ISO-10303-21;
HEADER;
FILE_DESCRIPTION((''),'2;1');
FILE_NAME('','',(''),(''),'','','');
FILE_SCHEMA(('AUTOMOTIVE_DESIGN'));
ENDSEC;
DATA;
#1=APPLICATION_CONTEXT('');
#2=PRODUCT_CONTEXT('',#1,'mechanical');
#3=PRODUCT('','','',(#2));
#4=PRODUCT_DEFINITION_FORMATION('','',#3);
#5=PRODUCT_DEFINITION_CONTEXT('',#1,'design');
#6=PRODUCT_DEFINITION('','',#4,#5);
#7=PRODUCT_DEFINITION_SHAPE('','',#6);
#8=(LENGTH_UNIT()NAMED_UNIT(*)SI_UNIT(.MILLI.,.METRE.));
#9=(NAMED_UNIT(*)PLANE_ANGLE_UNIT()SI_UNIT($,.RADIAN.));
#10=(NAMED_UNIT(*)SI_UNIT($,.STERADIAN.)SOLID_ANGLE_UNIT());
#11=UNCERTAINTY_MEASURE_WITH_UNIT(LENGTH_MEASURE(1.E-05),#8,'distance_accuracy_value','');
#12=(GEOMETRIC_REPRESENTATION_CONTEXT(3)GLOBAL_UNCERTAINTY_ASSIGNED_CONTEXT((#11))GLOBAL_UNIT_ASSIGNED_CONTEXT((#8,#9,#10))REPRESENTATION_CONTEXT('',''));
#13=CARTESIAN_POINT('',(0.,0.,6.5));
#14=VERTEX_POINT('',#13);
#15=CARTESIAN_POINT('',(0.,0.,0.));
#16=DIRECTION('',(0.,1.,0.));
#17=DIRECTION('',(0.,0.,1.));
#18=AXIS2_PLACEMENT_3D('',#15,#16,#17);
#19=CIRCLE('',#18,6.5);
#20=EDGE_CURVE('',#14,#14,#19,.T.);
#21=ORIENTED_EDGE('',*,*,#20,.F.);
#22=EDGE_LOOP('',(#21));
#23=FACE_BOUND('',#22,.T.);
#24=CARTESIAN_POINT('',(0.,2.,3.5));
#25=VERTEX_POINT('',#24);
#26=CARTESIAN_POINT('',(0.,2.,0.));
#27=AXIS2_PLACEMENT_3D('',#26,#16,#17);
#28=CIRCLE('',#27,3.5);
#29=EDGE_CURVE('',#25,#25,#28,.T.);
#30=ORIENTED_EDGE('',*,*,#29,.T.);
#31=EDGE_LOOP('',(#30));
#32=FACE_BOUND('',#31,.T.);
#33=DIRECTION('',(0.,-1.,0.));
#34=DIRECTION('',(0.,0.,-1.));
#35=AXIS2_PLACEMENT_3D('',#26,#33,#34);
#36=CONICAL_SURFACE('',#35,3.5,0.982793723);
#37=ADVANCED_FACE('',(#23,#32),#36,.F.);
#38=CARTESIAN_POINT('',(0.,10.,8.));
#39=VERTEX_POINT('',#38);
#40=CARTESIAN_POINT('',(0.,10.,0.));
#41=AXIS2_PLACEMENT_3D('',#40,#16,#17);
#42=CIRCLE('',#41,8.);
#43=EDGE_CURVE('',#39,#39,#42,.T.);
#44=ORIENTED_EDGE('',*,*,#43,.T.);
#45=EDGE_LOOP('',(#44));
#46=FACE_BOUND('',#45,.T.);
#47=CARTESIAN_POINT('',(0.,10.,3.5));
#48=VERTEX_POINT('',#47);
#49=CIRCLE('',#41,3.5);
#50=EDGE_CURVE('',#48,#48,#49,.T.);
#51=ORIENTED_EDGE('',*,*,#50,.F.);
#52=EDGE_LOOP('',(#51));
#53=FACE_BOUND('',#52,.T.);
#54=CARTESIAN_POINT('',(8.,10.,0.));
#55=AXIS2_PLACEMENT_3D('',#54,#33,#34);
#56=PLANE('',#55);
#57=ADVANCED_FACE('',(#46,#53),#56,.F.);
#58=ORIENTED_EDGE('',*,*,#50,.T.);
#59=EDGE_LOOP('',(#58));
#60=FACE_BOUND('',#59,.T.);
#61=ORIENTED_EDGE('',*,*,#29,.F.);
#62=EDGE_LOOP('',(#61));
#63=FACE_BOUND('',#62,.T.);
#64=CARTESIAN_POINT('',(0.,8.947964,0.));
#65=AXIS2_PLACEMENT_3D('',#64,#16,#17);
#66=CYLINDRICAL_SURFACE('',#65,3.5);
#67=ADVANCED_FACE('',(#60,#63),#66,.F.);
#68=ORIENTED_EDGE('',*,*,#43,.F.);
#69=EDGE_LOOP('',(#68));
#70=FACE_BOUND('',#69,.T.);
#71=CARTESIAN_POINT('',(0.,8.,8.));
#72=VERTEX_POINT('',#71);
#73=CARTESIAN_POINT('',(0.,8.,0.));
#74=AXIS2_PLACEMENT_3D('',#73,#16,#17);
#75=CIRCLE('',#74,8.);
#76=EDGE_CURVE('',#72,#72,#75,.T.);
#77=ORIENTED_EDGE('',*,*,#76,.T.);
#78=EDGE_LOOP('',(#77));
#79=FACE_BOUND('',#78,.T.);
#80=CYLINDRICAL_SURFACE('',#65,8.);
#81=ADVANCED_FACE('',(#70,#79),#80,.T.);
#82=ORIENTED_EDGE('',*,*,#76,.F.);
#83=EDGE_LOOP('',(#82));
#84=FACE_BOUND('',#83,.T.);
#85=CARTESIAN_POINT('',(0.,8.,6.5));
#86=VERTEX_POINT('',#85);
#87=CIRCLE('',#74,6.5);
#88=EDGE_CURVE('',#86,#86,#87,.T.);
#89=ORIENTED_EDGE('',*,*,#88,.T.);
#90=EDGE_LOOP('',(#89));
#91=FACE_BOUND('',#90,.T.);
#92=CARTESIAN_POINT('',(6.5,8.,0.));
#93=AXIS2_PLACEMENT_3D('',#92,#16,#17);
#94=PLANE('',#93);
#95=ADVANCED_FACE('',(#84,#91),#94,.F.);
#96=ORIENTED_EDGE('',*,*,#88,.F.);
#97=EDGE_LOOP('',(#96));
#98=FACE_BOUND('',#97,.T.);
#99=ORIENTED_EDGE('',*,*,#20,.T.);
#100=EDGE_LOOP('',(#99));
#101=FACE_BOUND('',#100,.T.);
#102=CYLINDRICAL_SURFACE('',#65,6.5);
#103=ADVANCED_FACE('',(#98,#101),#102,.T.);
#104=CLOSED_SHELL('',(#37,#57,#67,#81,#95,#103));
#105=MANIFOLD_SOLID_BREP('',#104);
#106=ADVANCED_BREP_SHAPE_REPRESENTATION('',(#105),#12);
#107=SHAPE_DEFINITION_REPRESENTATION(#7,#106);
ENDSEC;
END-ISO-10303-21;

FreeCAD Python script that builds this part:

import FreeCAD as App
import Part
import Sketcher
from FreeCAD import Vector

doc = App.newDocument("Part")
body = doc.addObject("PartDesign::Body", "Body")

# Sketch on XY plane
sketch1 = body.newObject("Sketcher::SketchObject", "Sketch")
sketch1.AttachmentSupport = (doc.getObject("XY_Plane"), [""])
sketch1.MapMode = "FlatFace"
sketch1.addGeometry([
    Part.LineSegment(Vector(6.5, 0, 0), Vector(6.5, 8, 0)),  # 0
    Part.LineSegment(Vector(6.5, 8, 0), Vector(8, 8, 0)),  # 1
    Part.LineSegment(Vector(8, 8, 0), Vector(8, 10, 0)),  # 2
    Part.LineSegment(Vector(8, 10, 0), Vector(3.5, 10, 0)),  # 3
    Part.LineSegment(Vector(3.5, 10, 0), Vector(3.5, 2, 0)),  # 4
    Part.LineSegment(Vector(3.5, 2, 0), Vector(6.5, 0, 0)),  # 5
], False)
sketch1.addConstraint([
    Sketcher.Constraint("Coincident", 0, 2, 1, 1),
    Sketcher.Constraint("Coincident", 1, 2, 2, 1),
    Sketcher.Constraint("Coincident", 2, 2, 3, 1),
    Sketcher.Constraint("Coincident", 3, 2, 4, 1),
    Sketcher.Constraint("Coincident", 4, 2, 5, 1),
    Sketcher.Constraint("Coincident", 5, 2, 0, 1),
    Sketcher.Constraint("Vertical", 0),
    Sketcher.Constraint("Horizontal", 1),
    Sketcher.Constraint("Vertical", 2),
    Sketcher.Constraint("Horizontal", 3),
    Sketcher.Constraint("Vertical", 4),
    Sketcher.Constraint("PointOnObject", 5, 2, -1),
    Sketcher.Constraint("Equal", 0, 4),
    Sketcher.Constraint("DistanceY", 0, 1, 0, 2, 8.0),
    Sketcher.Constraint("DistanceY", 2, 1, 2, 2, 2.0),
    Sketcher.Constraint("DistanceX", 1, 1, 1, 2, 1.5),
    Sketcher.Constraint("DistanceX", 3, 2, 3, 1, 4.5),
    Sketcher.Constraint("DistanceX", -1, 1, 1, 2, 8.0),
])
revolution = body.newObject("PartDesign::Revolution", "Revolution")
revolution.Profile = sketch1
revolution.ReferenceAxis = (sketch1, ["V_Axis"])
revolution.Angle = 360

doc.recompute()
